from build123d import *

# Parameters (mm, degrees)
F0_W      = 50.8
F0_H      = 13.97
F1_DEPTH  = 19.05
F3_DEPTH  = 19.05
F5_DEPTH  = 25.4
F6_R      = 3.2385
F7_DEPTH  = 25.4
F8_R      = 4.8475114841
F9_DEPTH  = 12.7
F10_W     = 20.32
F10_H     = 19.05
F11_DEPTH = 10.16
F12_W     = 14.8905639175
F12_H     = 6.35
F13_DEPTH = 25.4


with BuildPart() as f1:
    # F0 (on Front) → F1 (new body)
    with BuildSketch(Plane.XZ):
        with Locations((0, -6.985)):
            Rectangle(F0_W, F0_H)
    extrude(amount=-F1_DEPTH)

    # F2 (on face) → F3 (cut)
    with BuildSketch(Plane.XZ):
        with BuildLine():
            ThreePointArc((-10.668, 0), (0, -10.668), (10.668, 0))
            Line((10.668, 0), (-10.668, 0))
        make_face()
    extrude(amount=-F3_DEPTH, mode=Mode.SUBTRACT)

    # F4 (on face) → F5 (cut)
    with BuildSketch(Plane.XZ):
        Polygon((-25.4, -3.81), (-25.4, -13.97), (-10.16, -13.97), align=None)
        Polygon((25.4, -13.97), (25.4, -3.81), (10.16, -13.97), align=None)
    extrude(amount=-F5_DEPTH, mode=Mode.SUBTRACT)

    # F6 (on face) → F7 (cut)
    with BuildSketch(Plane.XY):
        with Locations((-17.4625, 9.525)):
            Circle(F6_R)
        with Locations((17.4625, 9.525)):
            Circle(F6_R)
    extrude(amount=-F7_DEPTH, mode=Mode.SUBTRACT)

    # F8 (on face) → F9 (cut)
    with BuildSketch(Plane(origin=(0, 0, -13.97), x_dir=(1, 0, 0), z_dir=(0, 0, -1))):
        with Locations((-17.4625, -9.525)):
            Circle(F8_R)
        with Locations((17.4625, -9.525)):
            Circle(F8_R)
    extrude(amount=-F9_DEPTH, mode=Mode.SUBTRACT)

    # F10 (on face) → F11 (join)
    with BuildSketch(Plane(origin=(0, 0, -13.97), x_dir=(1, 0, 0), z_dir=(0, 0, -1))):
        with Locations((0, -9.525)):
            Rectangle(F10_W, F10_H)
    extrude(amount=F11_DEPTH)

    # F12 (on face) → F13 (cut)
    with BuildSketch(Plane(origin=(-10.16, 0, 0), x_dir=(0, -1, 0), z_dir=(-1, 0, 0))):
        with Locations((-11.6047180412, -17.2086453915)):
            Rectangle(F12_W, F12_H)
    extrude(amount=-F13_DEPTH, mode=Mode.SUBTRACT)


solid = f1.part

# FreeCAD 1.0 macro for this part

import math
import FreeCAD as App
import Part
import Sketcher
from FreeCAD import Vector
Q = App.Units.Quantity


def add_polygon(sketch, points):
    """Adds a closed chain of lines whose ends are joined by coincident constraints."""
    first, n = sketch.GeometryCount, len(points)
    for a, b in zip(points, points[1:] + points[:1]):
        sketch.addGeometry(Part.LineSegment(App.Vector(*a, 0), App.Vector(*b, 0)), False)
    for i in range(n):
        sketch.addConstraint(Sketcher.Constraint("Coincident", first + i, 2, first + (i + 1) % n, 1))

doc = App.newDocument("Part")
body = doc.addObject("PartDesign::Body", "Body")

# Sketch on XZ plane
sketch1 = doc.addObject("Sketcher::SketchObject", "Sketch")
body.addObject(sketch1)
sketch1.AttachmentSupport = (doc.XZ_Plane, [""])
sketch1.MapMode = "FlatFace"
add_polygon(sketch1, [(-25, 0), (-25, -14), (25, -14), (25, 0)])  # lines 0-3
sketch1.addConstraint(Sketcher.Constraint("Vertical", 0))
sketch1.addConstraint(Sketcher.Constraint("Horizontal", 1))
sketch1.addConstraint(Sketcher.Constraint("Vertical", 2))
sketch1.addConstraint(Sketcher.Constraint("Horizontal", 3))
sketch1.addConstraint(Sketcher.Constraint("Symmetric", 2, 2, 3, 2, -1, 1))
sketch1.addConstraint(Sketcher.Constraint("DistanceX", 1, 1, 1, 2, Q("2 in")))
sketch1.addConstraint(Sketcher.Constraint("DistanceY", 0, 2, 0, 1, Q("0.55 in")))
pad1 = doc.addObject("PartDesign::Pad", "Pad")
body.addObject(pad1)
pad1.Profile = sketch1
pad1.Length = Q("0.75 in")
pad1.Reversed = True

# Sketch on XZ plane
sketch2 = doc.addObject("Sketcher::SketchObject", "Sketch001")
body.addObject(sketch2)
sketch2.AttachmentSupport = (doc.XZ_Plane, [""])
sketch2.MapMode = "FlatFace"
sketch2.addGeometry(Part.ArcOfCircle(Part.Circle(Vector(0, 0, 0), Vector(0, 0, 1), 11), math.radians(180), math.radians(360)), False)
sketch2.addGeometry(Part.LineSegment(Vector(11, 0, 0), Vector(-11, 0, 0)), False)
sketch2.addConstraint(Sketcher.Constraint("Coincident", 0, 1, 1, 2))
sketch2.addConstraint(Sketcher.Constraint("Coincident", 1, 1, 0, 2))
sketch2.addConstraint(Sketcher.Constraint("Horizontal", 1))
sketch2.addConstraint(Sketcher.Constraint("Coincident", 0, 3, -1, 1))
sketch2.addConstraint(Sketcher.Constraint("PointOnObject", 0, 1, -1))
sketch2.addConstraint(Sketcher.Constraint("Radius", 0, Q("0.42 in")))
pocket1 = doc.addObject("PartDesign::Pocket", "Pocket")
body.addObject(pocket1)
pocket1.Profile = sketch2
pocket1.Length = Q("0.75 in")

# Sketch on XZ plane
sketch3 = doc.addObject("Sketcher::SketchObject", "Sketch002")
body.addObject(sketch3)
sketch3.AttachmentSupport = (doc.XZ_Plane, [""])
sketch3.MapMode = "FlatFace"
add_polygon(sketch3, [(-25, -4), (-25, -14), (-10, -14)])  # lines 0-2
add_polygon(sketch3, [(25, -14), (25, -4), (10, -14)])  # lines 3-5
sketch3.addConstraint(Sketcher.Constraint("Vertical", 0))
sketch3.addConstraint(Sketcher.Constraint("Horizontal", 1))
sketch3.addConstraint(Sketcher.Constraint("Vertical", 3))
sketch3.addConstraint(Sketcher.Constraint("Horizontal", 5))
sketch3.addConstraint(Sketcher.Constraint("Symmetric", 2, 2, 3, 2, -2))
sketch3.addConstraint(Sketcher.Constraint("Symmetric", 1, 2, 4, 2, -2))
sketch3.addConstraint(Sketcher.Constraint("DistanceX", 1, 1, 1, 2, Q("0.6 in")))
sketch3.addConstraint(Sketcher.Constraint("DistanceY", 0, 2, 0, 1, Q("0.4 in")))
sketch3.addConstraint(Sketcher.Constraint("DistanceX", 0, 2, -1, 1, Q("1 in")))
sketch3.addConstraint(Sketcher.Constraint("DistanceY", 0, 2, -1, 1, Q("0.55 in")))
pocket2 = doc.addObject("PartDesign::Pocket", "Pocket001")
body.addObject(pocket2)
pocket2.Profile = sketch3
pocket2.Length = Q("1 in")

# Sketch on XY plane
sketch4 = doc.addObject("Sketcher::SketchObject", "Sketch003")
body.addObject(sketch4)
sketch4.AttachmentSupport = (doc.XY_Plane, [""])
sketch4.MapMode = "FlatFace"
sketch4.addGeometry(Part.Circle(Vector(-17.5, 9.5, 0), Vector(0, 0, 1), 3.2), False)
sketch4.addGeometry(Part.Circle(Vector(17.5, 9.5, 0), Vector(0, 0, 1), 3.2), False)
sketch4.addConstraint(Sketcher.Constraint("Equal", 0, 1))
sketch4.addConstraint(Sketcher.Constraint("Symmetric", 0, 3, 1, 3, -2))
sketch4.addConstraint(Sketcher.Constraint("Diameter", 0, Q("0.255 in")))
sketch4.addConstraint(Sketcher.Constraint("DistanceX", 0, 3, -1, 1, Q("0.6875 in")))
sketch4.addConstraint(Sketcher.Constraint("DistanceY", -1, 1, 0, 3, Q("0.375 in")))
pocket3 = doc.addObject("PartDesign::Pocket", "Pocket002")
body.addObject(pocket3)
pocket3.Profile = sketch4
pocket3.Length = Q("1 in")

# Sketch on XY plane
sketch5 = doc.addObject("Sketcher::SketchObject", "Sketch004")
body.addObject(sketch5)
sketch5.AttachmentSupport = (doc.XY_Plane, [""])
sketch5.MapMode = "FlatFace"
sketch5.AttachmentOffset = App.Placement(Vector(0, 0, -0.55 * 25.4), App.Rotation())
sketch5.addGeometry(Part.Circle(Vector(-17.5, 9.5, 0), Vector(0, 0, 1), 4.8), False)
sketch5.addGeometry(Part.Circle(Vector(17.5, 9.5, 0), Vector(0, 0, 1), 4.8), False)
sketch5.addConstraint(Sketcher.Constraint("Equal", 0, 1))
sketch5.addConstraint(Sketcher.Constraint("Symmetric", 0, 3, 1, 3, -2))
sketch5.addConstraint(Sketcher.Constraint("DistanceX", 0, 3, -1, 1, Q("0.6875 in")))
sketch5.addConstraint(Sketcher.Constraint("DistanceY", -1, 1, 0, 3, Q("0.375 in")))
sketch5.addConstraint(Sketcher.Constraint("Diameter", 0, Q("9.695023 mm")))
pocket4 = doc.addObject("PartDesign::Pocket", "Pocket003")
body.addObject(pocket4)
pocket4.Profile = sketch5
pocket4.Length = Q("0.5 in")
pocket4.Reversed = True

# Sketch on XY plane
sketch6 = doc.addObject("Sketcher::SketchObject", "Sketch005")
body.addObject(sketch6)
sketch6.AttachmentSupport = (doc.XY_Plane, [""])
sketch6.MapMode = "FlatFace"
sketch6.AttachmentOffset = App.Placement(Vector(0, 0, -0.55 * 25.4), App.Rotation())
add_polygon(sketch6, [(-10, 0), (-10, 19), (10, 19), (10, 0)])  # lines 0-3
sketch6.addConstraint(Sketcher.Constraint("Vertical", 0))
sketch6.addConstraint(Sketcher.Constraint("Horizontal", 1))
sketch6.addConstraint(Sketcher.Constraint("Vertical", 2))
sketch6.addConstraint(Sketcher.Constraint("Horizontal", 3))
sketch6.addConstraint(Sketcher.Constraint("Symmetric", 2, 2, 3, 2, -1, 1))
sketch6.addConstraint(Sketcher.Constraint("DistanceX", 1, 1, 1, 2, Q("0.8 in")))
sketch6.addConstraint(Sketcher.Constraint("DistanceY", 0, 1, 0, 2, Q("0.75 in")))
pad2 = doc.addObject("PartDesign::Pad", "Pad001")
body.addObject(pad2)
pad2.Profile = sketch6
pad2.Length = Q("0.4 in")
pad2.Reversed = True

# Sketch on YZ plane
sketch7 = doc.addObject("Sketcher::SketchObject", "Sketch006")
body.addObject(sketch7)
sketch7.AttachmentSupport = (doc.YZ_Plane, [""])
sketch7.MapMode = "FlatFace"
sketch7.AttachmentOffset = App.Placement(Vector(0, 0, -0.4 * 25.4), App.Rotation())
add_polygon(sketch7, [(19, -14), (19, -20), (4, -20), (4, -14)])  # lines 0-3
sketch7.addConstraint(Sketcher.Constraint("Vertical", 0))
sketch7.addConstraint(Sketcher.Constraint("Horizontal", 1))
sketch7.addConstraint(Sketcher.Constraint("Vertical", 2))
sketch7.addConstraint(Sketcher.Constraint("Horizontal", 3))
sketch7.addConstraint(Sketcher.Constraint("DistanceY", 0, 2, 0, 1, Q("0.25 in")))
sketch7.addConstraint(Sketcher.Constraint("DistanceX", -1, 1, 0, 2, Q("0.75 in")))
sketch7.addConstraint(Sketcher.Constraint("DistanceX", 1, 2, 1, 1, Q("14.890564 mm")))
sketch7.addConstraint(Sketcher.Constraint("DistanceY", 0, 2, -1, 1, Q("20.383645 mm")))
pocket5 = doc.addObject("PartDesign::Pocket", "Pocket004")
body.addObject(pocket5)
pocket5.Profile = sketch7
pocket5.Length = Q("1 in")
pocket5.Reversed = True

doc.recompute()
